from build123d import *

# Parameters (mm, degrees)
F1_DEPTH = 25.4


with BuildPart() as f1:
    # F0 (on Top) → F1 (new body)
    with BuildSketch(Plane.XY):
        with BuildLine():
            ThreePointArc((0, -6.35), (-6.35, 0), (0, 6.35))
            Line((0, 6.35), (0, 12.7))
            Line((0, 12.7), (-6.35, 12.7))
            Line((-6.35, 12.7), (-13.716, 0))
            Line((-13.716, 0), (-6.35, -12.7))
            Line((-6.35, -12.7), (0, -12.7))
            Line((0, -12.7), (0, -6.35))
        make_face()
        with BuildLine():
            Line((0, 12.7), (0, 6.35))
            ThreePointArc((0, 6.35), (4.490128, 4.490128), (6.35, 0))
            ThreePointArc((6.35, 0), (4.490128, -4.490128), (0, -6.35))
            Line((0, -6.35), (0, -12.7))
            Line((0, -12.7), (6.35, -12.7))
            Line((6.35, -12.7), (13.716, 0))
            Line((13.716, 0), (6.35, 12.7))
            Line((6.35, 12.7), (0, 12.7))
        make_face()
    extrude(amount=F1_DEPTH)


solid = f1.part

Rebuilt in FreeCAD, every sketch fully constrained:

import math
import FreeCAD as App
import Part
import Sketcher

V = App.Vector
Q = App.Units.Quantity

doc = App.newDocument("Part")
body = doc.addObject("PartDesign::Body", "Body")

# Sketch on XY plane
sketch1 = body.newObject("Sketcher::SketchObject", "Sketch")
sketch1.AttachmentSupport = (doc.getObject("XY_Plane"), [""])
sketch1.MapMode = "FlatFace"
sketch1.addGeometry([
    Part.LineSegment(V(-6, 13, 0), V(-14, 0, 0)),  # 0
    Part.LineSegment(V(-14, 0, 0), V(-6, -13, 0)),  # 1
    Part.LineSegment(V(-6, -13, 0), V(6, -13, 0)),  # 2
    Part.LineSegment(V(6, -13, 0), V(14, 0, 0)),  # 3
    Part.LineSegment(V(14, 0, 0), V(6, 13, 0)),  # 4
    Part.LineSegment(V(6, 13, 0), V(-6, 13, 0)),  # 5
    Part.ArcOfCircle(Part.Circle(V(0, 0, 0), V(0, 0, 1), 6), math.radians(90), math.radians(270)),  # 6
    Part.ArcOfCircle(Part.Circle(V(0, 0, 0), V(0, 0, 1), 6), math.radians(0), math.radians(90)),  # 7
    Part.ArcOfCircle(Part.Circle(V(0, 0, 0), V(0, 0, 1), 6), math.radians(-90), math.radians(0)),  # 8
], False)
sketch1.addConstraint([
    Sketcher.Constraint("Coincident", 0, 2, 1, 1),
    Sketcher.Constraint("Coincident", 1, 2, 2, 1),
    Sketcher.Constraint("Coincident", 2, 2, 3, 1),
    Sketcher.Constraint("Coincident", 3, 2, 4, 1),
    Sketcher.Constraint("Coincident", 4, 2, 5, 1),
    Sketcher.Constraint("Coincident", 5, 2, 0, 1),
    Sketcher.Constraint("Tangent", 6, 1, 7, 2),
    Sketcher.Constraint("Tangent", 7, 1, 8, 2),
    Sketcher.Constraint("Tangent", 8, 1, 6, 2),
    Sketcher.Constraint("Horizontal", 2),
    Sketcher.Constraint("Horizontal", 5),
    Sketcher.Constraint("Coincident", 6, 3, -1, 1),
    Sketcher.Constraint("Symmetric", 0, 2, 3, 2, -1, 1),
    Sketcher.Constraint("Symmetric", 1, 2, 4, 2, -1, 1),
    Sketcher.Constraint("PointOnObject", 0, 2, -1),
    Sketcher.Constraint("PointOnObject", 6, 1, -2),
    Sketcher.Constraint("PointOnObject", 7, 1, -1),
    Sketcher.Constraint("PointOnObject", 8, 1, -2),
    Sketcher.Constraint("Parallel", 0, 3),
    Sketcher.Constraint("Vertical", 2, 2, 4, 2),
    Sketcher.Constraint("Vertical", 4, 2, 7, 1),
    Sketcher.Constraint("Radius", 6, Q("0.25 in")),
    Sketcher.Constraint("DistanceY", 1, 2, -1, 1, Q("0.5 in")),
    Sketcher.Constraint("DistanceX", 0, 2, -1, 1, Q("0.54 in")),
])
pad1 = body.newObject("PartDesign::Pad", "Pad")
pad1.Profile = sketch1
pad1.Length = Q("1 in")

doc.recompute()
